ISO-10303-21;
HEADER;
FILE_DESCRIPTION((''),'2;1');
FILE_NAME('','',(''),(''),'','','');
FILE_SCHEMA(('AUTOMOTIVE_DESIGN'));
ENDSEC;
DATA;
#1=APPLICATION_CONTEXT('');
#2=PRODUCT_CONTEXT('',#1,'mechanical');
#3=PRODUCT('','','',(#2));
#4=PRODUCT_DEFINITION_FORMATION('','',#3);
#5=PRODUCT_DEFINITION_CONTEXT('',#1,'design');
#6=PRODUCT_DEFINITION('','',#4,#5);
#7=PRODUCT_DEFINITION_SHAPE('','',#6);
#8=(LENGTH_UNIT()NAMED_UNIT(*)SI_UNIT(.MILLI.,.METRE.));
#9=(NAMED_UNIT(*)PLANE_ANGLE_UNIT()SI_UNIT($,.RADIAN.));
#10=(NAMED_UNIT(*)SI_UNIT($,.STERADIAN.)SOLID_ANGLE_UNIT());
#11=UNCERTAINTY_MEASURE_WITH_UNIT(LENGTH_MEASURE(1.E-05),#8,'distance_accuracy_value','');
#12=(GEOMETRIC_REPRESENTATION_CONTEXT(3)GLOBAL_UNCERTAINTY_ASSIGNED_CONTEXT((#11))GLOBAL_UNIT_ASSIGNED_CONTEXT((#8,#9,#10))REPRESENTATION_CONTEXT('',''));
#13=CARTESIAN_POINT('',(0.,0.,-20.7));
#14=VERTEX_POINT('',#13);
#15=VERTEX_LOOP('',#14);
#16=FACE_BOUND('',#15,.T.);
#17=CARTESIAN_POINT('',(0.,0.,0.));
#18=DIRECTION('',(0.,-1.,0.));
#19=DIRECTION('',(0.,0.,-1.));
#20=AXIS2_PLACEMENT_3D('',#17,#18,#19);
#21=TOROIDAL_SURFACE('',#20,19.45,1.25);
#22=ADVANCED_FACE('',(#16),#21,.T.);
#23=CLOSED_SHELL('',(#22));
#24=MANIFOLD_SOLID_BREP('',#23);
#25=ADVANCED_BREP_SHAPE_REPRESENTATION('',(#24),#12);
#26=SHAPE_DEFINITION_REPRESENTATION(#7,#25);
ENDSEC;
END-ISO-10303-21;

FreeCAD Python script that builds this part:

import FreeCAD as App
import Part
import Sketcher

V = App.Vector
Q = App.Units.Quantity

doc = App.newDocument("Part")
params = doc.addObject("Spreadsheet::Sheet", "Params")
for row, (alias, value) in enumerate([
    ("sketch1_diameter", "2.5 mm"),
    ("revolution_angle", "360 deg"),
], start=1):
    params.set(f"A{row}", alias)
    params.set(f"B{row}", "=" + value)
    params.setAlias(f"B{row}", alias)

body = doc.addObject("PartDesign::Body", "Body")

# Sketch on XY plane
sketch1 = body.newObject("Sketcher::SketchObject", "Sketch")
sketch1.AttachmentSupport = (doc.getObject("XY_Plane"), [""])
sketch1.MapMode = "FlatFace"
sketch1.addGeometry(Part.Circle(V(-19.4, 0, 0), V(0, 0, 1), 1.2), False)
sketch1.addConstraint(Sketcher.Constraint("PointOnObject", 0, 3, -1))
sketch1.addConstraint(Sketcher.Constraint("Diameter", 0, Q("2.5 mm")))
sketch1.addConstraint(Sketcher.Constraint("DistanceX", 0, 3, -1, 1, Q("19.45 mm")))
sketch1.setExpression("Constraints[1]", "Params.sketch1_diameter")
revolution = body.newObject("PartDesign::Revolution", "Revolution")
revolution.Profile = sketch1
revolution.ReferenceAxis = (sketch1, ["V_Axis"])
revolution.setExpression("Angle", "Params.revolution_angle")

doc.recompute()
